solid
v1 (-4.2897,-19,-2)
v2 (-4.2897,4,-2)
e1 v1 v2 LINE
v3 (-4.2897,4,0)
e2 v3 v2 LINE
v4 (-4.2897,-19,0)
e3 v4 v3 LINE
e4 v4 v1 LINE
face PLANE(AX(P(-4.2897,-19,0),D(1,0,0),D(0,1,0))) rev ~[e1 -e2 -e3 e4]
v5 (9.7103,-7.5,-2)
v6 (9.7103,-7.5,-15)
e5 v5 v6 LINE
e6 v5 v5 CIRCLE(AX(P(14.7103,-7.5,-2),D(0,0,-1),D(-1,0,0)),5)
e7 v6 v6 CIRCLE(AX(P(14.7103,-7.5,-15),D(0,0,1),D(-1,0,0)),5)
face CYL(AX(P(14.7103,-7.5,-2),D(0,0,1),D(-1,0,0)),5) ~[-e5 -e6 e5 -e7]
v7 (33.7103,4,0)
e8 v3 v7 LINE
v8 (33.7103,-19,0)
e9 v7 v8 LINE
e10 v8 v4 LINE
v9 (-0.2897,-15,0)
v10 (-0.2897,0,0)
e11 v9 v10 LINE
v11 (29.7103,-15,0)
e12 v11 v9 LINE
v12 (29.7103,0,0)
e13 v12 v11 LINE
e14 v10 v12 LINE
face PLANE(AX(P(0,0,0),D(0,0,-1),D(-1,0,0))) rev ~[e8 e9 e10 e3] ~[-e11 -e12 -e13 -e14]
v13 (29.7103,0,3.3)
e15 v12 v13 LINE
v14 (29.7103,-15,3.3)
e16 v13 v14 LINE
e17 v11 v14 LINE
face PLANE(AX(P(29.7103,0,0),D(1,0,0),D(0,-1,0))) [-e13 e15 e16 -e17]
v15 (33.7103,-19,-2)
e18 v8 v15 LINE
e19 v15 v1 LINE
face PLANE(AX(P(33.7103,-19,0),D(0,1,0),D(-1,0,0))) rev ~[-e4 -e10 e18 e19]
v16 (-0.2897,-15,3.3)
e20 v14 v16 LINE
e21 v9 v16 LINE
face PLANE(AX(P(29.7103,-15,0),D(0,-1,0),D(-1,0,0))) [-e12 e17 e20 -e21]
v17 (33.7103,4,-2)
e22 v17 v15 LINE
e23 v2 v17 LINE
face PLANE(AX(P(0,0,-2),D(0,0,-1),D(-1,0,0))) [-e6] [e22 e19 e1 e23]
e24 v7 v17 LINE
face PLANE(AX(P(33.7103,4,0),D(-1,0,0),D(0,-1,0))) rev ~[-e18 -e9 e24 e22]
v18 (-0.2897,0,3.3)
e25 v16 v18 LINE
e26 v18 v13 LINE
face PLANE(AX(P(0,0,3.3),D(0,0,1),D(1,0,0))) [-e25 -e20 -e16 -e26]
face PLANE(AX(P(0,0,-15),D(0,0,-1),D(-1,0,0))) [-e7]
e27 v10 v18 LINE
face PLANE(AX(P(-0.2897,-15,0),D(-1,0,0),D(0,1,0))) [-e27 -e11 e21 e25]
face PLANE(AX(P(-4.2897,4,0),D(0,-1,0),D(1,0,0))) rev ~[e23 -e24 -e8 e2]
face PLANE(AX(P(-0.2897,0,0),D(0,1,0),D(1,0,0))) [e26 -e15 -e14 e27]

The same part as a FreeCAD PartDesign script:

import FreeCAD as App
import Part
import Sketcher

V = App.Vector
Q = App.Units.Quantity

doc = App.newDocument("Part")
body = doc.addObject("PartDesign::Body", "Body")

# Sketch on XY plane
sketch1 = body.newObject("Sketcher::SketchObject", "Sketch")
sketch1.AttachmentSupport = (doc.getObject("XY_Plane"), [""])
sketch1.MapMode = "FlatFace"
sketch1.addGeometry([
    Part.LineSegment(V(30, 0, 0), V(0, 0, 0)),
    Part.LineSegment(V(0, 0, 0), V(0, -15, 0)),
    Part.LineSegment(V(0, -15, 0), V(30, -15, 0)),
    Part.LineSegment(V(30, -15, 0), V(30, 0, 0)),
], False)
sketch1.addConstraint([
    Sketcher.Constraint("Coincident", 0, 2, 1, 1),
    Sketcher.Constraint("Coincident", 1, 2, 2, 1),
    Sketcher.Constraint("Coincident", 2, 2, 3, 1),
    Sketcher.Constraint("Coincident", 3, 2, 0, 1),
    Sketcher.Constraint("Horizontal", 0),
    Sketcher.Constraint("Vertical", 1),
    Sketcher.Constraint("Horizontal", 2),
    Sketcher.Constraint("Vertical", 3),
    Sketcher.Constraint("PointOnObject", 0, 2, -1),
    Sketcher.Constraint("DistanceX", 0, 2, 0, 1, Q("30 mm")),
    Sketcher.Constraint("DistanceY", 1, 2, 1, 1, Q("15 mm")),
    Sketcher.Constraint("DistanceX", 0, 2, -1, 1, Q("0.2897 mm")),
])
pad1 = body.newObject("PartDesign::Pad", "Pad")
pad1.Profile = sketch1
pad1.Length = 3.3

# Sketch on XY plane
sketch2 = body.newObject("Sketcher::SketchObject", "Sketch001")
sketch2.AttachmentSupport = (doc.getObject("XY_Plane"), [""])
sketch2.MapMode = "FlatFace"
sketch2.addGeometry([
    Part.LineSegment(V(-4, -19, 0), V(-4, 4, 0)),
    Part.LineSegment(V(-4, 4, 0), V(34, 4, 0)),
    Part.LineSegment(V(34, 4, 0), V(34, -19, 0)),
    Part.LineSegment(V(34, -19, 0), V(-4, -19, 0)),
], False)
sketch2.addConstraint([
    Sketcher.Constraint("Coincident", 0, 2, 1, 1),
    Sketcher.Constraint("Coincident", 1, 2, 2, 1),
    Sketcher.Constraint("Coincident", 2, 2, 3, 1),
    Sketcher.Constraint("Coincident", 3, 2, 0, 1),
    Sketcher.Constraint("Vertical", 0),
    Sketcher.Constraint("Horizontal", 1),
    Sketcher.Constraint("Vertical", 2),
    Sketcher.Constraint("Horizontal", 3),
    Sketcher.Constraint("DistanceY", -1, 1, 0, 2, Q("4 mm")),
    Sketcher.Constraint("DistanceX", 1, 1, 1, 2, Q("38 mm")),
    Sketcher.Constraint("DistanceY", 0, 1, 0, 2, Q("23 mm")),
    Sketcher.Constraint("DistanceX", 0, 2, -1, 1, Q("4.2897 mm")),
])
pad2 = body.newObject("PartDesign::Pad", "Pad001")
pad2.Profile = sketch2
pad2.Length = 2
pad2.Reversed = True

# Sketch on XY plane
sketch3 = body.newObject("Sketcher::SketchObject", "Sketch002")
sketch3.AttachmentSupport = (doc.getObject("XY_Plane"), [""])
sketch3.MapMode = "FlatFace"
sketch3.AttachmentOffset = App.Placement(V(0, 0, -2), App.Rotation())
sketch3.addGeometry(Part.Circle(V(15, -8, 0), V(0, 0, 1), 5), False)
sketch3.addConstraint([
    Sketcher.Constraint("Diameter", 0, Q("10 mm")),
    Sketcher.Constraint("DistanceY", 0, 3, -1, 1, Q("7.5 mm")),
    Sketcher.Constraint("DistanceX", -1, 1, 0, 3, Q("14.7103 mm")),
])
pad3 = body.newObject("PartDesign::Pad", "Pad002")
pad3.Profile = sketch3
pad3.Length = 13
pad3.Reversed = True

doc.recompute()
